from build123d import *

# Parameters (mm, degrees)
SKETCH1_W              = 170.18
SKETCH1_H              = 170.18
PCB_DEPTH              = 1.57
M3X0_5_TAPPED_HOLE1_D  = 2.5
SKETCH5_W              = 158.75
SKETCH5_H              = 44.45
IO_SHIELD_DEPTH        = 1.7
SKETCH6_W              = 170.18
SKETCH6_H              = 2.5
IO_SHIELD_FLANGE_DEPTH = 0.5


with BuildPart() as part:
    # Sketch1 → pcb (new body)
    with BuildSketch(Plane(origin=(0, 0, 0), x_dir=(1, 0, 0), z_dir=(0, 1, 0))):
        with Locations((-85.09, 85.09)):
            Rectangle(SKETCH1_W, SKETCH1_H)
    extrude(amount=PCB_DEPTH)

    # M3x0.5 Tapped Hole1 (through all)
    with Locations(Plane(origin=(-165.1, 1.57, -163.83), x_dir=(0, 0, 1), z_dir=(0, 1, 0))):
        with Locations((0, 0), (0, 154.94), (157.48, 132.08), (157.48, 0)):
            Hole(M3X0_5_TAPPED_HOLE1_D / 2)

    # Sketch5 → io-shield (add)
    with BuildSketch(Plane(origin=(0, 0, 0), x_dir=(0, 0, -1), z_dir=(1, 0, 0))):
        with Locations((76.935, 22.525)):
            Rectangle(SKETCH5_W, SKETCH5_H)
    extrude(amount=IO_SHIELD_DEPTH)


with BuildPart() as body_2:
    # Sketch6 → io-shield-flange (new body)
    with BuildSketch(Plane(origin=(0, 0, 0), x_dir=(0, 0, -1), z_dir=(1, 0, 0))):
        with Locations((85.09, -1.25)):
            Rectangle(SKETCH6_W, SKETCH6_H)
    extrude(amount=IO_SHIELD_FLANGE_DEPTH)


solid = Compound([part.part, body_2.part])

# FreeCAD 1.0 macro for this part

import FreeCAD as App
import Part
import Sketcher

doc = App.newDocument("Part")
body = doc.addObject("PartDesign::Body", "Body")

sketch1 = body.newObject("Sketcher::SketchObject", "Sketch")
sketch1.AttachmentSupport = (doc.getObject("XZ_Plane"), [""])
sketch1.MapMode = "FlatFace"
sketch1.addGeometry(Part.LineSegment(App.Vector(-170, -170, 0), App.Vector(-170, 0, 0)), False)
sketch1.addGeometry(Part.LineSegment(App.Vector(-170, 0, 0), App.Vector(0, 0, 0)), False)
sketch1.addGeometry(Part.LineSegment(App.Vector(0, 0, 0), App.Vector(0, -170, 0)), False)
sketch1.addGeometry(Part.LineSegment(App.Vector(0, -170, 0), App.Vector(-170, -170, 0)), False)
sketch1.addConstraint(Sketcher.Constraint("Coincident", 0, 2, 1, 1))
sketch1.addConstraint(Sketcher.Constraint("Coincident", 1, 2, 2, 1))
sketch1.addConstraint(Sketcher.Constraint("Coincident", 2, 2, 3, 1))
sketch1.addConstraint(Sketcher.Constraint("Coincident", 3, 2, 0, 1))
sketch1.addConstraint(Sketcher.Constraint("Vertical", 0))
sketch1.addConstraint(Sketcher.Constraint("Horizontal", 1))
sketch1.addConstraint(Sketcher.Constraint("Vertical", 2))
sketch1.addConstraint(Sketcher.Constraint("Horizontal", 3))
sketch1.addConstraint(Sketcher.Constraint("Coincident", 1, 2, -1, 1))
sketch1.addConstraint(Sketcher.Constraint("Equal", 3, 0))
sketch1.addConstraint(Sketcher.Constraint("DistanceX", 1, 1, 1, 2, 170.18))
pad1 = body.newObject("PartDesign::Pad", "Pad")
pad1.Profile = sketch1
pad1.Length = 1.57
pad1.Reversed = True

sketch2 = body.newObject("Sketcher::SketchObject", "Sketch001")
sketch2.AttachmentSupport = (doc.getObject("XZ_Plane"), [""])
sketch2.MapMode = "FlatFace"
sketch2.AttachmentOffset = App.Placement(App.Vector(0, 0, -1.57), App.Rotation())
sketch2.addGeometry(Part.Circle(App.Vector(-165.1, -163.8, 0), App.Vector(0, 0, 1), 1.2), False)
sketch2.addGeometry(Part.Circle(App.Vector(-10.2, -163.8, 0), App.Vector(0, 0, 1), 1.2), False)
sketch2.addGeometry(Part.Circle(App.Vector(-33, -6.3, 0), App.Vector(0, 0, 1), 1.2), False)
sketch2.addGeometry(Part.Circle(App.Vector(-165.1, -6.3, 0), App.Vector(0, 0, 1), 1.2), False)
sketch2.addConstraint(Sketcher.Constraint("Equal", 0, 1))
sketch2.addConstraint(Sketcher.Constraint("Equal", 1, 2))
sketch2.addConstraint(Sketcher.Constraint("Equal", 2, 3))
sketch2.addConstraint(Sketcher.Constraint("Horizontal", 0, 3, 1, 3))
sketch2.addConstraint(Sketcher.Constraint("Horizontal", 2, 3, 3, 3))
sketch2.addConstraint(Sketcher.Constraint("Vertical", 0, 3, 3, 3))
sketch2.addConstraint(Sketcher.Constraint("Diameter", 0, 2.5))
sketch2.addConstraint(Sketcher.Constraint("DistanceX", 0, 3, -1, 1, 165.1))
sketch2.addConstraint(Sketcher.Constraint("DistanceY", 0, 3, -1, 1, 163.83))
sketch2.addConstraint(Sketcher.Constraint("DistanceX", 1, 3, -1, 1, 10.16))
sketch2.addConstraint(Sketcher.Constraint("DistanceX", 2, 3, -1, 1, 33.02))
sketch2.addConstraint(Sketcher.Constraint("DistanceY", 2, 3, -1, 1, 6.35))
doc.recompute()
hole = body.newObject("PartDesign::Hole", "Hole")
hole.Profile = sketch2
hole.ThreadType = "None"
hole.Diameter = 2.5
hole.DepthType = "ThroughAll"
hole.Reversed = True

sketch3 = body.newObject("Sketcher::SketchObject", "Sketch002")
sketch3.AttachmentSupport = (doc.getObject("YZ_Plane"), [""])
sketch3.MapMode = "FlatFace"
sketch3.addGeometry(Part.LineSegment(App.Vector(45, 2, 0), App.Vector(0, 2, 0)), False)
sketch3.addGeometry(Part.LineSegment(App.Vector(0, 2, 0), App.Vector(0, -156, 0)), False)
sketch3.addGeometry(Part.LineSegment(App.Vector(0, -156, 0), App.Vector(45, -156, 0)), False)
sketch3.addGeometry(Part.LineSegment(App.Vector(45, -156, 0), App.Vector(45, 2, 0)), False)
sketch3.addConstraint(Sketcher.Constraint("Coincident", 0, 2, 1, 1))
sketch3.addConstraint(Sketcher.Constraint("Coincident", 1, 2, 2, 1))
sketch3.addConstraint(Sketcher.Constraint("Coincident", 2, 2, 3, 1))
sketch3.addConstraint(Sketcher.Constraint("Coincident", 3, 2, 0, 1))
sketch3.addConstraint(Sketcher.Constraint("Horizontal", 0))
sketch3.addConstraint(Sketcher.Constraint("Vertical", 1))
sketch3.addConstraint(Sketcher.Constraint("Horizontal", 2))
sketch3.addConstraint(Sketcher.Constraint("Vertical", 3))
sketch3.addConstraint(Sketcher.Constraint("DistanceX", 0, 2, 0, 1, 44.45))
sketch3.addConstraint(Sketcher.Constraint("DistanceY", 1, 2, 1, 1, 158.75))
sketch3.addConstraint(Sketcher.Constraint("DistanceX", -1, 1, 0, 2, 0.3))
sketch3.addConstraint(Sketcher.Constraint("DistanceY", -1, 1, 0, 2, 2.44))
pad2 = body.newObject("PartDesign::Pad", "Pad001")
pad2.Profile = sketch3
pad2.Length = 1.7
body2 = doc.addObject("PartDesign::Body", "Body001")

sketch4 = body2.newObject("Sketcher::SketchObject", "Sketch003")
sketch4.AttachmentSupport = (doc.getObject("YZ_Plane001"), [""])
sketch4.MapMode = "FlatFace"
sketch4.addGeometry(Part.LineSegment(App.Vector(0, 0, 0), App.Vector(-2.5, 0, 0)), False)
sketch4.addGeometry(Part.LineSegment(App.Vector(-2.5, 0, 0), App.Vector(-2.5, -170.2, 0)), False)
sketch4.addGeometry(Part.LineSegment(App.Vector(-2.5, -170.2, 0), App.Vector(0, -170.2, 0)), False)
sketch4.addGeometry(Part.LineSegment(App.Vector(0, -170.2, 0), App.Vector(0, 0, 0)), False)
sketch4.addConstraint(Sketcher.Constraint("Coincident", 0, 2, 1, 1))
sketch4.addConstraint(Sketcher.Constraint("Coincident", 1, 2, 2, 1))
sketch4.addConstraint(Sketcher.Constraint("Coincident", 2, 2, 3, 1))
sketch4.addConstraint(Sketcher.Constraint("Coincident", 3, 2, 0, 1))
sketch4.addConstraint(Sketcher.Constraint("Horizontal", 0))
sketch4.addConstraint(Sketcher.Constraint("Vertical", 1))
sketch4.addConstraint(Sketcher.Constraint("Horizontal", 2))
sketch4.addConstraint(Sketcher.Constraint("Vertical", 3))
sketch4.addConstraint(Sketcher.Constraint("Coincident", 3, 2, -1, 1))
sketch4.addConstraint(Sketcher.Constraint("DistanceX", 0, 2, 0, 1, 2.5))
sketch4.addConstraint(Sketcher.Constraint("DistanceY", 1, 2, 1, 1, 170.18))
pad3 = body2.newObject("PartDesign::Pad", "Pad002")
pad3.Profile = sketch4
pad3.Length = 0.5

doc.recompute()
